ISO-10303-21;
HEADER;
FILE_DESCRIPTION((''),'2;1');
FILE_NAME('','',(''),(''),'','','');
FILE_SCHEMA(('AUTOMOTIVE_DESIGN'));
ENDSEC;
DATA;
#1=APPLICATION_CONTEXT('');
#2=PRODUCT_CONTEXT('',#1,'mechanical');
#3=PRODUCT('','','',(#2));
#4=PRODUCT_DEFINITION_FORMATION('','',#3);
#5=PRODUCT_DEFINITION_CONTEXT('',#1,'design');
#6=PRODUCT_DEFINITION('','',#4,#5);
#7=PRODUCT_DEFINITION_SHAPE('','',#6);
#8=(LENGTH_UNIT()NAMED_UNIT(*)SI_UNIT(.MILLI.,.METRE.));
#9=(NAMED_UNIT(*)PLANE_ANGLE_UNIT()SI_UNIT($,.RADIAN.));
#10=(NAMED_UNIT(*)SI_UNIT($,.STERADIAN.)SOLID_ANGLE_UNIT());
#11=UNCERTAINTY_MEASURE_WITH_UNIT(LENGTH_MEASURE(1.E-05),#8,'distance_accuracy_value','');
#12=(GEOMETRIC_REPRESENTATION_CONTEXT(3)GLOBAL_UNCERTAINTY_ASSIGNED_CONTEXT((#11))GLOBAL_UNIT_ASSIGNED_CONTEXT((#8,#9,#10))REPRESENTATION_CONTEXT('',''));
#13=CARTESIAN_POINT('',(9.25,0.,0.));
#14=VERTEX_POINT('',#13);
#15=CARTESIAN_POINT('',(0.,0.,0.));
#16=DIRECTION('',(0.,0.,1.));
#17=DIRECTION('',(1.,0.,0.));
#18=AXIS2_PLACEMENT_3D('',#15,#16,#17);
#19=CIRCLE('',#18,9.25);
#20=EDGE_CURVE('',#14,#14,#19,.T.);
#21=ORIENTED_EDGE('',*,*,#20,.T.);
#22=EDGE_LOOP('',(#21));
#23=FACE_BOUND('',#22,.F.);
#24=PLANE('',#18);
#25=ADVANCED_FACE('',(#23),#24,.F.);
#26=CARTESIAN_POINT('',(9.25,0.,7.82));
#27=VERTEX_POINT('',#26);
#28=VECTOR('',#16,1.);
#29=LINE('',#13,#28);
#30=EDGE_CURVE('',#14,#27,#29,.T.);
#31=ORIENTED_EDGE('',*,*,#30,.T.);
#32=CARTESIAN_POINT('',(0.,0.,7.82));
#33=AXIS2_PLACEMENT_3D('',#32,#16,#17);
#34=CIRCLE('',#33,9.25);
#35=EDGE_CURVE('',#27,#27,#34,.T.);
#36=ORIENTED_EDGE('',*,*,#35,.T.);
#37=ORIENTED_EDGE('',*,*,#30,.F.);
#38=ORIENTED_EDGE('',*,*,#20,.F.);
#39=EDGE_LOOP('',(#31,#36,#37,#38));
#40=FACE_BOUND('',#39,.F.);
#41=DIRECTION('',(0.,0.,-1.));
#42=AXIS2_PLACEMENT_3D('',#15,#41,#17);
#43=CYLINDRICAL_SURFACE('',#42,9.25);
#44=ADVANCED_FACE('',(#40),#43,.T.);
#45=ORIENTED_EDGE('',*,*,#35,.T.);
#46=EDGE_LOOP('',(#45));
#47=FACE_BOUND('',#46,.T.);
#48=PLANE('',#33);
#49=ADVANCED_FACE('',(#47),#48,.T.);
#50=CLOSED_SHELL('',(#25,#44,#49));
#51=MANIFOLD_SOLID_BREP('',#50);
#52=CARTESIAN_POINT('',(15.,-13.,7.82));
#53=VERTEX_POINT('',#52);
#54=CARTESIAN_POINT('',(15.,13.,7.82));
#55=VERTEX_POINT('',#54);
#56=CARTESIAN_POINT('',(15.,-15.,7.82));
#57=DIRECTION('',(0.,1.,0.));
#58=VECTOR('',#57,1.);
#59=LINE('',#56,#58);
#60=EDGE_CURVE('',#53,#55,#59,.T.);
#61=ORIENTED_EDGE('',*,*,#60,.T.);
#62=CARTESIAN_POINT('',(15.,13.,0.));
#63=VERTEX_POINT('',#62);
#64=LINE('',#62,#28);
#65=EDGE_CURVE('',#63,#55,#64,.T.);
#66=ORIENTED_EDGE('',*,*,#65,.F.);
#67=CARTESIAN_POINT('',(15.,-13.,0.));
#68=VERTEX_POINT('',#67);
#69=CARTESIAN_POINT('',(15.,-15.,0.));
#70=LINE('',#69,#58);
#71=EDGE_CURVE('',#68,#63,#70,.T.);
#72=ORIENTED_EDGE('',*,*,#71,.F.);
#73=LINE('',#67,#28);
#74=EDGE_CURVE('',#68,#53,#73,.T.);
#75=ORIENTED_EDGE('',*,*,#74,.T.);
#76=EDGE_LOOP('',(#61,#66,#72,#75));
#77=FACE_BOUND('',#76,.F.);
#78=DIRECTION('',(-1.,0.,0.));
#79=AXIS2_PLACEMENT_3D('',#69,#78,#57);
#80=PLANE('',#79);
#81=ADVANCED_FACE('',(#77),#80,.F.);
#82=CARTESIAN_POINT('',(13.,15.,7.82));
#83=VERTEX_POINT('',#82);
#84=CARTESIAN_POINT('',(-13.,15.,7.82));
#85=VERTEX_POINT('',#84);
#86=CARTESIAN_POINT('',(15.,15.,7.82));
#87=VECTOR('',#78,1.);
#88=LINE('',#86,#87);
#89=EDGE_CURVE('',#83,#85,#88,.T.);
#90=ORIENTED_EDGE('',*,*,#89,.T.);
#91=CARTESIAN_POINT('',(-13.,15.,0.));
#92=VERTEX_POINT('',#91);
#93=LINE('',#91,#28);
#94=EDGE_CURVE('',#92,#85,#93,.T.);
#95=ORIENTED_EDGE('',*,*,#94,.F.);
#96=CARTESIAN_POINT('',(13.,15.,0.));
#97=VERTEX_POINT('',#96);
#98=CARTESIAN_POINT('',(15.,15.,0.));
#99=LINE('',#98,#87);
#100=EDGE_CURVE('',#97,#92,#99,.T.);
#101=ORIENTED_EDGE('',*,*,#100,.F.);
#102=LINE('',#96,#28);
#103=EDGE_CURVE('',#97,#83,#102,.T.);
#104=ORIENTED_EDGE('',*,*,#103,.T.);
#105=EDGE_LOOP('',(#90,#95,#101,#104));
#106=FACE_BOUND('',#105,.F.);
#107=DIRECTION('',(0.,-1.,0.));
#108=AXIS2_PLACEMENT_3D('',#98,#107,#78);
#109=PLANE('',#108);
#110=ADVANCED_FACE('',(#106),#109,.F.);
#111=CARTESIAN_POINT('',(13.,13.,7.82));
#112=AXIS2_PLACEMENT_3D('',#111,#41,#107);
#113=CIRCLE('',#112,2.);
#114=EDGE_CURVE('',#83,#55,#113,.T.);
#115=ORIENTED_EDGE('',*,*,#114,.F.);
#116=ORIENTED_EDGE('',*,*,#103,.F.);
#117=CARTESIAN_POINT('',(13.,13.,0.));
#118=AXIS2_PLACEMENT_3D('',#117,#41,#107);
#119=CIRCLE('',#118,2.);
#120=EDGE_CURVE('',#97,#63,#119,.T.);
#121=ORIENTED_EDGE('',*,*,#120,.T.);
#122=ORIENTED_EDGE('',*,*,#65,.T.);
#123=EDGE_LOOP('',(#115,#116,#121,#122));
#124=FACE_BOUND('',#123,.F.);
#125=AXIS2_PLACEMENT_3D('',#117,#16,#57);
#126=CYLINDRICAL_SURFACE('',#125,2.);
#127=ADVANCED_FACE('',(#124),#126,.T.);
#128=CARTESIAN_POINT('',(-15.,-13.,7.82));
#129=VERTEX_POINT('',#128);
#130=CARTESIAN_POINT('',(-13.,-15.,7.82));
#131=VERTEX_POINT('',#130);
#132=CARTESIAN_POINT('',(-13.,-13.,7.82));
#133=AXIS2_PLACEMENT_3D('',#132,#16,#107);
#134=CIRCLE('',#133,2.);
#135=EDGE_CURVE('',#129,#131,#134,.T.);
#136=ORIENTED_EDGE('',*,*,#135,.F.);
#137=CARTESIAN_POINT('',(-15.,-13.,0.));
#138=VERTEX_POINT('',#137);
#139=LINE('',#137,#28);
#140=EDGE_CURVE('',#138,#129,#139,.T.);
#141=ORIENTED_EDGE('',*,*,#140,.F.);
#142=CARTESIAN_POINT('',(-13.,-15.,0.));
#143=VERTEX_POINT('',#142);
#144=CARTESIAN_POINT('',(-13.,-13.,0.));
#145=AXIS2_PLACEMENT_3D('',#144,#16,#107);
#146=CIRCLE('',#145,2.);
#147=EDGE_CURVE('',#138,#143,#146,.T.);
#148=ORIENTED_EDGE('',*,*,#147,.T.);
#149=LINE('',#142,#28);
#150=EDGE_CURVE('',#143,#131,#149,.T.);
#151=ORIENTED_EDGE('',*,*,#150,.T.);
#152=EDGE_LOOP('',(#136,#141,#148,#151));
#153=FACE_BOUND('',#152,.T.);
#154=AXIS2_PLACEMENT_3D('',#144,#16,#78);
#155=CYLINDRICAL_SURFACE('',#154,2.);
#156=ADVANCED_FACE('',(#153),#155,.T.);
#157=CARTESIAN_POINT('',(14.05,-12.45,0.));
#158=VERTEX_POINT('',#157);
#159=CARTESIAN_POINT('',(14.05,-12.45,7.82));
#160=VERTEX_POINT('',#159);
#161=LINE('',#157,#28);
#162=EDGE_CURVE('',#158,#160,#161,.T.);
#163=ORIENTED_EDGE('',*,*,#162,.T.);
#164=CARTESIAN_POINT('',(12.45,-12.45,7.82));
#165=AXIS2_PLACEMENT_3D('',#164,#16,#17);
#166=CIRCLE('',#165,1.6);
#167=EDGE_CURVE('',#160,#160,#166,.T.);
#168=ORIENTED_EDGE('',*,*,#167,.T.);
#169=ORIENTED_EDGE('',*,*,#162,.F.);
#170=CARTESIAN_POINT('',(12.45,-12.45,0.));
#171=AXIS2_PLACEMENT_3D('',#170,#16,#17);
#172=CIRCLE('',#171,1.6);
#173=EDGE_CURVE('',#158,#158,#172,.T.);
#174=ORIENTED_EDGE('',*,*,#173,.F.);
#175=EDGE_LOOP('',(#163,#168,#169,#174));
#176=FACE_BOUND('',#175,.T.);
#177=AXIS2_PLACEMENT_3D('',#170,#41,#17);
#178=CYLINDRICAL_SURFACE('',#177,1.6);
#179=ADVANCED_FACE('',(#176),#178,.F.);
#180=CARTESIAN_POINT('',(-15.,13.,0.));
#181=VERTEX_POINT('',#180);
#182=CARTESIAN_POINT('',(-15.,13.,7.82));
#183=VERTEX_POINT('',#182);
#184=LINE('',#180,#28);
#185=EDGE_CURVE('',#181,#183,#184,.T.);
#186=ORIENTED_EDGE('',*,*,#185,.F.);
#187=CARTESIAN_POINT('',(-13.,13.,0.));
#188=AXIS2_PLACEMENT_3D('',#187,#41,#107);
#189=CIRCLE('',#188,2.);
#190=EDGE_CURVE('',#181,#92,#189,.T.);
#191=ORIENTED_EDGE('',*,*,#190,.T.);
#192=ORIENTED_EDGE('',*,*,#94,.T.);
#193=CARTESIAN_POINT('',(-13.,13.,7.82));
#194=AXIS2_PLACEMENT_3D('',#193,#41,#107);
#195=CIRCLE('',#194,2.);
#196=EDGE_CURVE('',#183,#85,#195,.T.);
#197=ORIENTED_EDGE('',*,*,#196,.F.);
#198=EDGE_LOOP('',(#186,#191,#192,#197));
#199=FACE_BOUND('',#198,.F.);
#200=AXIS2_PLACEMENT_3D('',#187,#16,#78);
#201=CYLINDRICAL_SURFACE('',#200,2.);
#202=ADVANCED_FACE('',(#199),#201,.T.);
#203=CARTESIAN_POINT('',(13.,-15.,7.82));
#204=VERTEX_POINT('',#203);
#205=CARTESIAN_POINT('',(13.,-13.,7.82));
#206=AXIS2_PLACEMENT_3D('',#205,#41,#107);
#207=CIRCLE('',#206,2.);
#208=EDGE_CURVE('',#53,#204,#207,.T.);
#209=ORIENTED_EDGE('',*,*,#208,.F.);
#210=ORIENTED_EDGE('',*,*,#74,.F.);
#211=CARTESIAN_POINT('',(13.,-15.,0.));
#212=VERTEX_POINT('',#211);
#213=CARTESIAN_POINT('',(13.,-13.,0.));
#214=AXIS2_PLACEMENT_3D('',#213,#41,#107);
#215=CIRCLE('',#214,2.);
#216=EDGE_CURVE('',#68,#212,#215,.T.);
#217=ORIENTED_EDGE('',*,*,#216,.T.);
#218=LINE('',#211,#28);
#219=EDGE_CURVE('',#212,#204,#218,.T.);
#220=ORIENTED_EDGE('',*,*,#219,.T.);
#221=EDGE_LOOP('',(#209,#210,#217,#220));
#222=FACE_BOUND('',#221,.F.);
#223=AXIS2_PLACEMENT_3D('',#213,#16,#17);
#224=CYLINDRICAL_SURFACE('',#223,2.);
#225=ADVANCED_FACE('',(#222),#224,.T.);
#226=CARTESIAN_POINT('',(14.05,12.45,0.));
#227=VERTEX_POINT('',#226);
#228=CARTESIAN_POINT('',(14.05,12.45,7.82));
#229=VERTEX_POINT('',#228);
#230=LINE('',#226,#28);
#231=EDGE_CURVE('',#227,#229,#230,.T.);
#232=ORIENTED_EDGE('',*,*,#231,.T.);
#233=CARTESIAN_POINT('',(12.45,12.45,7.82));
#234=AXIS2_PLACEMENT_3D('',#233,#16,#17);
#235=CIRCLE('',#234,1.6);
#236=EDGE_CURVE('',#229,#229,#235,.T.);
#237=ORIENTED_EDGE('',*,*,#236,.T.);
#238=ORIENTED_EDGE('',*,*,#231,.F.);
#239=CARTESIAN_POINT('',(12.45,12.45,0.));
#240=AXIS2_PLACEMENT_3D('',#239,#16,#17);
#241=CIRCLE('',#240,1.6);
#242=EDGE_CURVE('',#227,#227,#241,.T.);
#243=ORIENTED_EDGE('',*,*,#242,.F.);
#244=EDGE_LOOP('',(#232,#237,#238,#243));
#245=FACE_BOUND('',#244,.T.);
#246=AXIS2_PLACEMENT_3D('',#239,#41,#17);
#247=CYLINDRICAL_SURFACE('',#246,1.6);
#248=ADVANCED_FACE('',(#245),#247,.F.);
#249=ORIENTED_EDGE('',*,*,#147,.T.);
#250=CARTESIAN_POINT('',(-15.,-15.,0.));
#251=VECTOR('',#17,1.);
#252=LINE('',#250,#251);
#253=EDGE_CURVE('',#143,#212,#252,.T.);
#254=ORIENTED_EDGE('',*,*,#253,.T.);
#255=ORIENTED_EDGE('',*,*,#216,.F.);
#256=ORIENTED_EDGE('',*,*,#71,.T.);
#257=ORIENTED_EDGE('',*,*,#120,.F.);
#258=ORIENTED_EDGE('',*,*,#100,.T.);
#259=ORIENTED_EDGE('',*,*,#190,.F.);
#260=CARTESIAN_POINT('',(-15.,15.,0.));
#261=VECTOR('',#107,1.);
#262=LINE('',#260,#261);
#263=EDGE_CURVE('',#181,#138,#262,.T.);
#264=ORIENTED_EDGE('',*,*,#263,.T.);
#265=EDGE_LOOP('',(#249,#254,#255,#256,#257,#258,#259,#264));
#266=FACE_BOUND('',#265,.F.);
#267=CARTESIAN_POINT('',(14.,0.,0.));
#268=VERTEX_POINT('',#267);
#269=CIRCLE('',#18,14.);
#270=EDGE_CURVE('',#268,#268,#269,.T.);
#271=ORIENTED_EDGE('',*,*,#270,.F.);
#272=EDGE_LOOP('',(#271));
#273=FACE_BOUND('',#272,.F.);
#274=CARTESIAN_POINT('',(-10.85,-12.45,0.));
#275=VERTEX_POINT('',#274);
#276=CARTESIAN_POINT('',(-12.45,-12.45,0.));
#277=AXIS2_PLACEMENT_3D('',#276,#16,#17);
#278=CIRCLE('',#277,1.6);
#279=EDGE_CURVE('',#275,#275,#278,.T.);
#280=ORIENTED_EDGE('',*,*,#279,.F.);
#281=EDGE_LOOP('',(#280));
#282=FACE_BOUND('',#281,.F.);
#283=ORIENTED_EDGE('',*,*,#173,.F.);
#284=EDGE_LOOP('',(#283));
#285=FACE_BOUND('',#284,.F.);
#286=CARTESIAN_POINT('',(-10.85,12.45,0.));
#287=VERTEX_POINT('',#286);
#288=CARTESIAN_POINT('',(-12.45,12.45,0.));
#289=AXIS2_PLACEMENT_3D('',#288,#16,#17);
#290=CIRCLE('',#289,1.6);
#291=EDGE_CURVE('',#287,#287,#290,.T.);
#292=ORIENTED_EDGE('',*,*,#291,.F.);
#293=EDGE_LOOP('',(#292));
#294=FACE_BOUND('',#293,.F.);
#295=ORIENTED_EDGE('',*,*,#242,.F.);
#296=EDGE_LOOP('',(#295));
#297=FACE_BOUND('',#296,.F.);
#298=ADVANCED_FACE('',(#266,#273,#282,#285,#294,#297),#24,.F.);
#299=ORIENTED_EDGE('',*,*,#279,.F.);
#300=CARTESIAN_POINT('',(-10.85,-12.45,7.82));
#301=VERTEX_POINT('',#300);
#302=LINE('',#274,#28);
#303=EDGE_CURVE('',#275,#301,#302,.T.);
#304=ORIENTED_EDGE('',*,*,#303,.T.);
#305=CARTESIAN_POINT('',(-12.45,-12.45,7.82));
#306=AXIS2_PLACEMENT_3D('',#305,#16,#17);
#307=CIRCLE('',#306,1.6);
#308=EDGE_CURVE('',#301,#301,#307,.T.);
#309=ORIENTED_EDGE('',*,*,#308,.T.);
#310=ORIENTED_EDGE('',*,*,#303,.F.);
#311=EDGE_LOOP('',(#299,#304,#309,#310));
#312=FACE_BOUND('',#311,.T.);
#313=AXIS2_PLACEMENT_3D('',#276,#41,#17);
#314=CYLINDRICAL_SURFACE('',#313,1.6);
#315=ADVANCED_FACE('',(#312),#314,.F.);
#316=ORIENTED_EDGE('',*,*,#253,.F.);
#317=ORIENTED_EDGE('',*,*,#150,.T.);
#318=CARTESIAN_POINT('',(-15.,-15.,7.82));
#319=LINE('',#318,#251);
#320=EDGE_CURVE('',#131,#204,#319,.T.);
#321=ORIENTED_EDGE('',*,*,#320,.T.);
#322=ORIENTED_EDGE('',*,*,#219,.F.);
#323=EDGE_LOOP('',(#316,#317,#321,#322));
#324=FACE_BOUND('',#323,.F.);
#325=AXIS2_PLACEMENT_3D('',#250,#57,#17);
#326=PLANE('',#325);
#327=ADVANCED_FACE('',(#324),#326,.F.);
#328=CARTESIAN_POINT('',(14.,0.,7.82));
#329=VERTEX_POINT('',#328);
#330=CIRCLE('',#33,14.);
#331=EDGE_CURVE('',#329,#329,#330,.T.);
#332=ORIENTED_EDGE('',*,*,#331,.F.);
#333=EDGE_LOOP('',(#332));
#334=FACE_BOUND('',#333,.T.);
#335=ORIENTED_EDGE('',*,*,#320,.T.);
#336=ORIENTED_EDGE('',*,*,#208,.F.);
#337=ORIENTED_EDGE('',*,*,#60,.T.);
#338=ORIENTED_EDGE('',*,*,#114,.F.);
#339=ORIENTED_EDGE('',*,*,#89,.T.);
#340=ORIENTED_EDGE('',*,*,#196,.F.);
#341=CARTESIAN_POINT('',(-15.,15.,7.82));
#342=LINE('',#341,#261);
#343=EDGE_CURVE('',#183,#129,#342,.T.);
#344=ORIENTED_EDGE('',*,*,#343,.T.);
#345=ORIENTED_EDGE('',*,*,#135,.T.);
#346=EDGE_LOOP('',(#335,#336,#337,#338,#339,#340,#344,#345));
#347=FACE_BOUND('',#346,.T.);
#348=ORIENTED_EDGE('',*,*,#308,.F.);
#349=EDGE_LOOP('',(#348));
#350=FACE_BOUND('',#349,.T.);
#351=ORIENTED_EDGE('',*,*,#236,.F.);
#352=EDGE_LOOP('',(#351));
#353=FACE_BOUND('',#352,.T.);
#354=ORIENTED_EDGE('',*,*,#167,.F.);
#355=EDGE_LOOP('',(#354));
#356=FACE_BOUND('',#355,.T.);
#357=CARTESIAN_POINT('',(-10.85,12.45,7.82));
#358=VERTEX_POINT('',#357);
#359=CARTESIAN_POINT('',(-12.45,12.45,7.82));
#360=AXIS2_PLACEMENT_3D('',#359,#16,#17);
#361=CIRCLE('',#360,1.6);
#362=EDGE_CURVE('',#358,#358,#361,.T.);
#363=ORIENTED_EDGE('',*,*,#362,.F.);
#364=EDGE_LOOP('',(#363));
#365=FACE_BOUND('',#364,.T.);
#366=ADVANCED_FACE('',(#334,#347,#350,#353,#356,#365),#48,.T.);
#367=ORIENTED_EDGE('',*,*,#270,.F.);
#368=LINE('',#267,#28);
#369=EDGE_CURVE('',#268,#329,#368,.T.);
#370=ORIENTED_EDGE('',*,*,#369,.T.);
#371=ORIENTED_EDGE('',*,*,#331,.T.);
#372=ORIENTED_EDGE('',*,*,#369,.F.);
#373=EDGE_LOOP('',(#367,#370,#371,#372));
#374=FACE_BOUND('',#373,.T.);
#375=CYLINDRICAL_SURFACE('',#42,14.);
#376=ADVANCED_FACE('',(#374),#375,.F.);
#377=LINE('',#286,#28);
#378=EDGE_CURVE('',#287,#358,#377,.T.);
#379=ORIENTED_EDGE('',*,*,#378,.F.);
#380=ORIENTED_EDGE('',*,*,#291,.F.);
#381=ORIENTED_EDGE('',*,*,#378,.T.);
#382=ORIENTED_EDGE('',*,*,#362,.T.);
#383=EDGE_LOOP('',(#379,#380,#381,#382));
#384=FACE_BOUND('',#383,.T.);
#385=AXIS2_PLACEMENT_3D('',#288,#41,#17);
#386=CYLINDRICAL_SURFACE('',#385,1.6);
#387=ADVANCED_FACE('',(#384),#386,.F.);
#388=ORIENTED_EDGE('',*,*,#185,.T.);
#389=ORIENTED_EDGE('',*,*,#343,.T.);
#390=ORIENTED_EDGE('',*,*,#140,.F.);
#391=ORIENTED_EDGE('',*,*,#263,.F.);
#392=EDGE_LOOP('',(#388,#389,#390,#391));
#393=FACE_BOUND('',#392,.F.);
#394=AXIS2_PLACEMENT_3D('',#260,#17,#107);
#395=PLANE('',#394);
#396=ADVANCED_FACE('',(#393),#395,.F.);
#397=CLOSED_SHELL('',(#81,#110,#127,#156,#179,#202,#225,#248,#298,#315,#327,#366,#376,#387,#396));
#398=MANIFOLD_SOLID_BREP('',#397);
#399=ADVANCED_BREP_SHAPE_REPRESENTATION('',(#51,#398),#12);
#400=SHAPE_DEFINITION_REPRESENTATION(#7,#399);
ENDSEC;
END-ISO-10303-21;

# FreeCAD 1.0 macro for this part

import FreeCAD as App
import Part
import Sketcher

V = App.Vector


def edges_at(feature, points):
    """Names of the edges that pass closest to the given points."""
    edges = feature.Shape.Edges
    near = lambda p: min(range(len(edges)), key=lambda i: edges[i].distToShape(Part.Vertex(*p))[0])
    return sorted({f"Edge{near(p) + 1}" for p in points})


def add_polygon(sketch, points):
    """Adds a closed chain of lines whose ends are joined by coincident constraints."""
    first, n = sketch.GeometryCount, len(points)
    for a, b in zip(points, points[1:] + points[:1]):
        sketch.addGeometry(Part.LineSegment(App.Vector(*a, 0), App.Vector(*b, 0)), False)
    for i in range(n):
        sketch.addConstraint(Sketcher.Constraint("Coincident", first + i, 2, first + (i + 1) % n, 1))

doc = App.newDocument("Part")
body = doc.addObject("PartDesign::Body", "Body")
body.AllowCompound = True

# Sketch on XY plane
sketch1 = body.newObject("Sketcher::SketchObject", "Sketch")
sketch1.AttachmentSupport = (doc.getObject("XY_Plane"), [""])
sketch1.MapMode = "FlatFace"
add_polygon(sketch1, [(-15, 15), (-15, -15), (15, -15), (15, 15)])  # lines 0-3
sketch1.addGeometry(Part.Circle(V(-12.4, -12.4, 0), V(0, 0, 1), 1.6), False)  # 4
sketch1.addGeometry(Part.Circle(V(12.4, -12.4, 0), V(0, 0, 1), 1.6), False)  # 5
sketch1.addGeometry(Part.Circle(V(-12.4, 12.4, 0), V(0, 0, 1), 1.6), False)  # 6
sketch1.addGeometry(Part.Circle(V(0, 0, 0), V(0, 0, 1), 14), False)  # 7
sketch1.addGeometry(Part.Circle(V(12.4, 12.4, 0), V(0, 0, 1), 1.6), False)  # 8
sketch1.addGeometry(Part.Circle(V(0, 0, 0), V(0, 0, 1), 9.2), False)  # 9
sketch1.addConstraint(Sketcher.Constraint("Vertical", 0))
sketch1.addConstraint(Sketcher.Constraint("Horizontal", 1))
sketch1.addConstraint(Sketcher.Constraint("Vertical", 2))
sketch1.addConstraint(Sketcher.Constraint("Horizontal", 3))
sketch1.addConstraint(Sketcher.Constraint("Coincident", 7, 3, -1, 1))
sketch1.addConstraint(Sketcher.Constraint("Coincident", 9, 3, -1, 1))
sketch1.addConstraint(Sketcher.Constraint("Equal", 4, 5))
sketch1.addConstraint(Sketcher.Constraint("Equal", 5, 6))
sketch1.addConstraint(Sketcher.Constraint("Equal", 6, 8))
sketch1.addConstraint(Sketcher.Constraint("Symmetric", 5, 3, 6, 3, -1, 1))
sketch1.addConstraint(Sketcher.Constraint("Symmetric", 4, 3, 8, 3, -1, 1))
sketch1.addConstraint(Sketcher.Constraint("Symmetric", 0, 2, 2, 2, -1, 1))
sketch1.addConstraint(Sketcher.Constraint("Symmetric", 4, 3, 5, 3, -2))
sketch1.addConstraint(Sketcher.Constraint("Equal", 3, 0))
sketch1.addConstraint(Sketcher.Constraint("Diameter", 7, 28.0))
sketch1.addConstraint(Sketcher.Constraint("Diameter", 4, 3.2))
sketch1.addConstraint(Sketcher.Constraint("Diameter", 9, 18.5))
sketch1.addConstraint(Sketcher.Constraint("DistanceX", 1, 1, 1, 2, 30.0))
sketch1.addConstraint(Sketcher.Constraint("DistanceX", 0, 2, 4, 3, 2.55))
sketch1.addConstraint(Sketcher.Constraint("DistanceY", 0, 2, 4, 3, 2.55))
pad1 = body.newObject("PartDesign::Pad", "Pad")
pad1.Profile = sketch1
pad1.Length = 7.82
doc.recompute()

fillet = body.newObject("PartDesign::Fillet", "Fillet")
fillet.Base = (pad1, edges_at(pad1, [
    (15, 15, 3.91),
    (-15, 15, 3.91),
    (-15, -15, 3.91),
    (15, -15, 3.91),
]))
fillet.Radius = 2

doc.recompute()
